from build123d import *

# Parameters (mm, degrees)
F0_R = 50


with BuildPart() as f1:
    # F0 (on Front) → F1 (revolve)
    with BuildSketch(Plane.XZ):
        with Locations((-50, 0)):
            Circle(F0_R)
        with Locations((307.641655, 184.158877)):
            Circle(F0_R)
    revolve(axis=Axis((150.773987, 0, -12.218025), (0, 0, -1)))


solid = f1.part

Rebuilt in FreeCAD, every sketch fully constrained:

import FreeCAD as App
import Part
import Sketcher

doc = App.newDocument("Part")
body = doc.addObject("PartDesign::Body", "Body")
body.AllowCompound = True

# Sketch on XZ plane
sketch1 = body.newObject("Sketcher::SketchObject", "Sketch")
sketch1.AttachmentSupport = (doc.getObject("XZ_Plane"), [""])
sketch1.MapMode = "FlatFace"
sketch1.addGeometry(Part.Circle(App.Vector(-50, 0, 0), App.Vector(0, 0, 1), 50), False)
sketch1.addGeometry(Part.Circle(App.Vector(307.641655, 184.158877, 0), App.Vector(0, 0, 1), 50), False)
sketch1.addGeometry(Part.LineSegment(App.Vector(150.773987, 184.158877, 0), App.Vector(150.773987, 0, 0)), True)  # axis
sketch1.addConstraint(Sketcher.Constraint("Vertical", 2))
sketch1.addConstraint(Sketcher.Constraint("Equal", 0, 1))
sketch1.addConstraint(Sketcher.Constraint("PointOnObject", 0, 3, -1))
sketch1.addConstraint(Sketcher.Constraint("PointOnObject", 2, 2, -1))
sketch1.addConstraint(Sketcher.Constraint("Horizontal", 1, 3, 2, 1))
sketch1.addConstraint(Sketcher.Constraint("Diameter", 0, 100.0))
sketch1.addConstraint(Sketcher.Constraint("DistanceX", 0, 3, -1, 1, 50.0))
sketch1.addConstraint(Sketcher.Constraint("DistanceY", 2, 2, 2, 1, 184.158877))
sketch1.addConstraint(Sketcher.Constraint("DistanceX", 2, 1, 1, 3, 156.867668))
sketch1.addConstraint(Sketcher.Constraint("DistanceX", -1, 1, 1, 3, 307.641655))
revolution = body.newObject("PartDesign::Revolution", "Revolution")
revolution.Profile = sketch1
revolution.ReferenceAxis = (sketch1, ["Axis0"])
revolution.Angle = 360

doc.recompute()
